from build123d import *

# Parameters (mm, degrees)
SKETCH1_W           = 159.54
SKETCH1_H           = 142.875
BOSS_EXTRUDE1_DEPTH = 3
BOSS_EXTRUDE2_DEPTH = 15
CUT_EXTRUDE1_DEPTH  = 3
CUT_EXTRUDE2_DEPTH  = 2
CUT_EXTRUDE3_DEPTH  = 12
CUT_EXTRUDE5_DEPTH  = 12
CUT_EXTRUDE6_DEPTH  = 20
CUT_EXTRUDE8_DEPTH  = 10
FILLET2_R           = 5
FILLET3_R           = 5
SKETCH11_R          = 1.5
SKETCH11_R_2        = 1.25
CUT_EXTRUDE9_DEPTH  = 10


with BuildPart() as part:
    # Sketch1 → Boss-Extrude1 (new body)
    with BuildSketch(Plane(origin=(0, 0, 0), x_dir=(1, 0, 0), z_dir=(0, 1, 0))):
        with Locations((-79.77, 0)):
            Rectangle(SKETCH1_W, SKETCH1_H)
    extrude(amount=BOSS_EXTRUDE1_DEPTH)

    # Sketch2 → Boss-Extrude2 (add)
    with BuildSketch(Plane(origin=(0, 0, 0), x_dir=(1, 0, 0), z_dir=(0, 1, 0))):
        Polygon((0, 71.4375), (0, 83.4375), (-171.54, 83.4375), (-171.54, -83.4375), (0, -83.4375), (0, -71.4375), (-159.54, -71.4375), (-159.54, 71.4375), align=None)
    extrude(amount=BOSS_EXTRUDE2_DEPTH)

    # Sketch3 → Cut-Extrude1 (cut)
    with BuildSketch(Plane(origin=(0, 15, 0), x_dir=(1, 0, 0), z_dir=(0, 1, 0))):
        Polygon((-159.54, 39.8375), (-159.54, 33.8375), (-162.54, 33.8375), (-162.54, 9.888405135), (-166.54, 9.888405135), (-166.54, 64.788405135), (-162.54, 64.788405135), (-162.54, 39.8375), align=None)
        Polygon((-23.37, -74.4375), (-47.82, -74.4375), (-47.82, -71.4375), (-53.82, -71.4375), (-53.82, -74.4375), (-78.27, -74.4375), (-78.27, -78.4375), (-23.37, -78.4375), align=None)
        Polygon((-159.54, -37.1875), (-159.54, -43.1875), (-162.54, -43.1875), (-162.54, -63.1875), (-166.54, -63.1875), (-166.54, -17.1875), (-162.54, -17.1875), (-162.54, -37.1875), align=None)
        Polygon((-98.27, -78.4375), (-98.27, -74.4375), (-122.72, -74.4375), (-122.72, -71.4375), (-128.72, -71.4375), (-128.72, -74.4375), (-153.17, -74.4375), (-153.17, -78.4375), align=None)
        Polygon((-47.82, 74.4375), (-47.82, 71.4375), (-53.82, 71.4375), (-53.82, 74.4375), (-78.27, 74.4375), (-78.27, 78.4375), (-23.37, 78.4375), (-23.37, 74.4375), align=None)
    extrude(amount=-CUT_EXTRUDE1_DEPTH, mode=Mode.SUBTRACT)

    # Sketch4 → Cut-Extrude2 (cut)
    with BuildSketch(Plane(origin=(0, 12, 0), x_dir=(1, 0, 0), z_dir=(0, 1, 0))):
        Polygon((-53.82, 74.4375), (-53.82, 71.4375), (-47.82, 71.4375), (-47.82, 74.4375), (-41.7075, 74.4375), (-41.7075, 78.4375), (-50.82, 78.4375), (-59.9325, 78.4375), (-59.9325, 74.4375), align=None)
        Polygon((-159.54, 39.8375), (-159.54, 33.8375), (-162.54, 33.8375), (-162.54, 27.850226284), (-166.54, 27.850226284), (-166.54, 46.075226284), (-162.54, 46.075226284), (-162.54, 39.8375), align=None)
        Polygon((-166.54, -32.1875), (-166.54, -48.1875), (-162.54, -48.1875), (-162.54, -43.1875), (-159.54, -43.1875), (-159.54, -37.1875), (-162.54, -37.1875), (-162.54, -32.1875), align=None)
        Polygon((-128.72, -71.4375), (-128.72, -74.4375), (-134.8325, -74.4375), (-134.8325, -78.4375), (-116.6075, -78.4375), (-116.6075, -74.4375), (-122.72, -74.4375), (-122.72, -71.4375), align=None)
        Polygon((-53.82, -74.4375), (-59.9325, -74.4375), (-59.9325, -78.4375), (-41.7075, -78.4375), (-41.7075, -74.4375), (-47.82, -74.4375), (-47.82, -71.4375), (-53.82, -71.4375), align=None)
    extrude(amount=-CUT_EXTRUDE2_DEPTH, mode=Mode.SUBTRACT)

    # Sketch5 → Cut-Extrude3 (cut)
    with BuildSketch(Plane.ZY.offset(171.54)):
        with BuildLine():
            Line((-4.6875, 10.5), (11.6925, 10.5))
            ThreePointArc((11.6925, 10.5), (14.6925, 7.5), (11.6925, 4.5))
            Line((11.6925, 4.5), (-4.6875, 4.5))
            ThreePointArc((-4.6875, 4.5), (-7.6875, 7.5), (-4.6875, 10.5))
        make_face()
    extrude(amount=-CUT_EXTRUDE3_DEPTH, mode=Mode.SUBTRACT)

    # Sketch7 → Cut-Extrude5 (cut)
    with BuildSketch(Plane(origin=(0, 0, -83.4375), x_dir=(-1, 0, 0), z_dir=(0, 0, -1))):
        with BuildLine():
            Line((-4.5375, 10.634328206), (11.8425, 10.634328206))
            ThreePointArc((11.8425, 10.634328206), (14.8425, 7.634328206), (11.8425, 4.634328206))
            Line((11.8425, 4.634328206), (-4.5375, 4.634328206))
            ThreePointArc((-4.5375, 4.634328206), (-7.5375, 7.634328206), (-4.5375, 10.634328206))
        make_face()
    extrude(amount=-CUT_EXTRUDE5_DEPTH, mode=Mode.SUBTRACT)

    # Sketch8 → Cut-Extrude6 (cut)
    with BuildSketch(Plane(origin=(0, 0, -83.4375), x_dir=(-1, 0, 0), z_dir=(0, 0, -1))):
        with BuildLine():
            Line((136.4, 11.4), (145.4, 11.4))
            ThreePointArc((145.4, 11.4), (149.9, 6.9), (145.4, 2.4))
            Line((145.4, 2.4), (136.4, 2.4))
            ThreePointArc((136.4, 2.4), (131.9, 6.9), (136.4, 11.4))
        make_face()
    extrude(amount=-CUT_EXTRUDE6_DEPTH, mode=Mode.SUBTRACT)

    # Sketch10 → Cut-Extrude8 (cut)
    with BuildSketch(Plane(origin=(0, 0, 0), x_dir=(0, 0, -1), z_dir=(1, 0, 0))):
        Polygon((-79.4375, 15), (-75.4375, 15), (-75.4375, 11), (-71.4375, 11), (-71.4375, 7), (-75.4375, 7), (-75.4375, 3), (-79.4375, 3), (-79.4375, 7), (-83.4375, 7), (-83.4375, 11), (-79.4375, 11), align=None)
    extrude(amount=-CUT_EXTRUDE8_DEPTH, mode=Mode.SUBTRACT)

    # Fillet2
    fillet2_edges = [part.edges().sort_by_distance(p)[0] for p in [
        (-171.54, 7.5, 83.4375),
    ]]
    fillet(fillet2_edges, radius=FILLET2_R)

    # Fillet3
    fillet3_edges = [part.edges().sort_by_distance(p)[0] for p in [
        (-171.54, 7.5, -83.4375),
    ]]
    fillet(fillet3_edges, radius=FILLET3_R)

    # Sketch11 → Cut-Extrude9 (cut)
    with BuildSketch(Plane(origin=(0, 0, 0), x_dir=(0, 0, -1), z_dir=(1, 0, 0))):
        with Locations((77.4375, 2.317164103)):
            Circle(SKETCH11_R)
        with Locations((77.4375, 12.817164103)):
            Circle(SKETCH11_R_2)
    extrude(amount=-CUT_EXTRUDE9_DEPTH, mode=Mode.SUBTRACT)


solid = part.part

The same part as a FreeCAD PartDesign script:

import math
import FreeCAD as App
import Part
import Sketcher
from FreeCAD import Vector


def edges_at(feature, points):
    """Names of the edges that pass closest to the given points."""
    edges = feature.Shape.Edges
    near = lambda p: min(range(len(edges)), key=lambda i: edges[i].distToShape(Part.Vertex(*p))[0])
    return sorted({f"Edge{near(p) + 1}" for p in points})

doc = App.newDocument("Part")
params = doc.addObject("Spreadsheet::Sheet", "Params")
for row, (alias, value) in enumerate([
    ("sketch1_width", "159.54 mm"),
    ("pad1_length", "3 mm"),
    ("sketch2_height", "12 mm"),
    ("sketch2_width", "171.54 mm"),
    ("pad2_length", "15 mm"),
    ("sketch3_width", "3 mm"),
    ("sketch3_width2", "4 mm"),
    ("sketch3_width3", "6 mm"),
    ("sketch3_height", "20 mm"),
    ("sketch3_width4", "54.9 mm"),
    ("pocket1_length", "3 mm"),
    ("sketch4_width", "6 mm"),
    ("sketch4_width2", "3 mm"),
    ("sketch4_width3", "4 mm"),
    ("sketch4_height", "16 mm"),
    ("pocket2_length", "2 mm"),
    ("sketch5_radius", "3 mm"),
    ("sketch5_height", "16.38 mm"),
    ("pocket3_length", "12 mm"),
    ("sketch6_radius", "3 mm"),
    ("sketch6_width", "16.38 mm"),
    ("pocket4_length", "12 mm"),
    ("sketch7_radius", "4.5 mm"),
    ("sketch7_width", "9 mm"),
    ("pocket5_length", "20 mm"),
    ("sketch8_width", "4 mm"),
    ("pocket6_length", "10 mm"),
    ("fillet_radius", "5 mm"),
    ("fillet2_radius", "5 mm"),
    ("sketch9_diameter", "3 mm"),
    ("sketch9_diameter2", "2.5 mm"),
    ("pocket7_length", "10 mm"),
], start=1):
    params.set(f"A{row}", alias)
    params.set(f"B{row}", "=" + value)
    params.setAlias(f"B{row}", alias)

body = doc.addObject("PartDesign::Body", "Body")

# Sketch on XZ plane
sketch1 = body.newObject("Sketcher::SketchObject", "Sketch")
sketch1.AttachmentSupport = (doc.getObject("XZ_Plane"), [""])
sketch1.MapMode = "FlatFace"
sketch1.addGeometry([
    Part.LineSegment(Vector(-159.54, -71.4375, 0), Vector(-159.54, 71.4375, 0)),
    Part.LineSegment(Vector(-159.54, 71.4375, 0), Vector(0, 71.4375, 0)),
    Part.LineSegment(Vector(0, 71.4375, 0), Vector(0, -71.4375, 0)),
    Part.LineSegment(Vector(0, -71.4375, 0), Vector(-159.54, -71.4375, 0)),
], False)
sketch1.addConstraint([
    Sketcher.Constraint("Coincident", 0, 2, 1, 1),
    Sketcher.Constraint("Coincident", 1, 2, 2, 1),
    Sketcher.Constraint("Coincident", 2, 2, 3, 1),
    Sketcher.Constraint("Coincident", 3, 2, 0, 1),
    Sketcher.Constraint("Vertical", 0),
    Sketcher.Constraint("Horizontal", 1),
    Sketcher.Constraint("Vertical", 2),
    Sketcher.Constraint("Horizontal", 3),
    Sketcher.Constraint("Symmetric", 1, 2, 2, 2, -1, 1),
    Sketcher.Constraint("DistanceX", 1, 1, 1, 2, 159.54),
    Sketcher.Constraint("DistanceY", 0, 1, 0, 2, 142.875),
])
sketch1.setExpression("Constraints[9]", "Params.sketch1_width")
pad1 = body.newObject("PartDesign::Pad", "Pad")
pad1.Profile = sketch1
pad1.setExpression("Length", "Params.pad1_length")
pad1.Reversed = True

# Sketch on XZ plane
sketch2 = body.newObject("Sketcher::SketchObject", "Sketch001")
sketch2.AttachmentSupport = (doc.getObject("XZ_Plane"), [""])
sketch2.MapMode = "FlatFace"
sketch2.addGeometry([
    Part.LineSegment(Vector(0, -71.4375, 0), Vector(0, -83.4375, 0)),  # 0
    Part.LineSegment(Vector(0, -83.4375, 0), Vector(-171.54, -83.4375, 0)),  # 1
    Part.LineSegment(Vector(-171.54, -83.4375, 0), Vector(-171.54, 83.4375, 0)),  # 2
    Part.LineSegment(Vector(-171.54, 83.4375, 0), Vector(0, 83.4375, 0)),  # 3
    Part.LineSegment(Vector(0, 83.4375, 0), Vector(0, 71.4375, 0)),  # 4
    Part.LineSegment(Vector(0, 71.4375, 0), Vector(-159.54, 71.4375, 0)),  # 5
    Part.LineSegment(Vector(-159.54, 71.4375, 0), Vector(-159.54, -71.4375, 0)),  # 6
    Part.LineSegment(Vector(-159.54, -71.4375, 0), Vector(0, -71.4375, 0)),  # 7
], False)
sketch2.addConstraint([
    Sketcher.Constraint("Coincident", 0, 2, 1, 1),
    Sketcher.Constraint("Coincident", 1, 2, 2, 1),
    Sketcher.Constraint("Coincident", 2, 2, 3, 1),
    Sketcher.Constraint("Coincident", 3, 2, 4, 1),
    Sketcher.Constraint("Coincident", 4, 2, 5, 1),
    Sketcher.Constraint("Coincident", 5, 2, 6, 1),
    Sketcher.Constraint("Coincident", 6, 2, 7, 1),
    Sketcher.Constraint("Coincident", 7, 2, 0, 1),
    Sketcher.Constraint("Vertical", 0),
    Sketcher.Constraint("Horizontal", 1),
    Sketcher.Constraint("Vertical", 2),
    Sketcher.Constraint("Horizontal", 3),
    Sketcher.Constraint("Vertical", 4),
    Sketcher.Constraint("Horizontal", 5),
    Sketcher.Constraint("Vertical", 6),
    Sketcher.Constraint("Horizontal", 7),
    Sketcher.Constraint("Symmetric", 0, 2, 3, 2, -1, 1),
    Sketcher.Constraint("Symmetric", 4, 2, 7, 2, -1),
    Sketcher.Constraint("DistanceY", 0, 2, 0, 1, 12.0),
    Sketcher.Constraint("DistanceX", 2, 2, 5, 2, 12.0),
    Sketcher.Constraint("DistanceX", 1, 2, 1, 1, 171.54),
    Sketcher.Constraint("DistanceY", 2, 1, 2, 2, 166.875),
])
sketch2.setExpression("Constraints[18]", "Params.sketch2_height")
sketch2.setExpression("Constraints[20]", "Params.sketch2_width")
pad2 = body.newObject("PartDesign::Pad", "Pad001")
pad2.Profile = sketch2
pad2.setExpression("Length", "Params.pad2_length")
pad2.Reversed = True

# Sketch on XZ plane
sketch3 = body.newObject("Sketcher::SketchObject", "Sketch002")
sketch3.AttachmentSupport = (doc.getObject("XZ_Plane"), [""])
sketch3.MapMode = "FlatFace"
sketch3.AttachmentOffset = App.Placement(Vector(0, 0, -15), App.Rotation())
sketch3.addGeometry([
    Part.LineSegment(Vector(-159.54, -33.8375, 0), Vector(-159.54, -39.8375, 0)),  # 0
    Part.LineSegment(Vector(-159.54, -39.8375, 0), Vector(-162.54, -39.8375, 0)),  # 1
    Part.LineSegment(Vector(-162.54, -39.8375, 0), Vector(-162.54, -64.788405, 0)),  # 2
    Part.LineSegment(Vector(-162.54, -64.788405, 0), Vector(-166.54, -64.788405, 0)),  # 3
    Part.LineSegment(Vector(-166.54, -64.788405, 0), Vector(-166.54, -9.888405, 0)),  # 4
    Part.LineSegment(Vector(-166.54, -9.888405, 0), Vector(-162.54, -9.888405, 0)),  # 5
    Part.LineSegment(Vector(-162.54, -9.888405, 0), Vector(-162.54, -33.8375, 0)),  # 6
    Part.LineSegment(Vector(-162.54, -33.8375, 0), Vector(-159.54, -33.8375, 0)),  # 7
    Part.LineSegment(Vector(-23.37, 74.4375, 0), Vector(-47.82, 74.4375, 0)),  # 8
    Part.LineSegment(Vector(-47.82, 74.4375, 0), Vector(-47.82, 71.4375, 0)),  # 9
    Part.LineSegment(Vector(-47.82, 71.4375, 0), Vector(-53.82, 71.4375, 0)),  # 10
    Part.LineSegment(Vector(-53.82, 71.4375, 0), Vector(-53.82, 74.4375, 0)),  # 11
    Part.LineSegment(Vector(-53.82, 74.4375, 0), Vector(-78.27, 74.4375, 0)),  # 12
    Part.LineSegment(Vector(-78.27, 74.4375, 0), Vector(-78.27, 78.4375, 0)),  # 13
    Part.LineSegment(Vector(-78.27, 78.4375, 0), Vector(-23.37, 78.4375, 0)),  # 14
    Part.LineSegment(Vector(-23.37, 78.4375, 0), Vector(-23.37, 74.4375, 0)),  # 15
    Part.LineSegment(Vector(-159.54, 43.1875, 0), Vector(-159.54, 37.1875, 0)),  # 16
    Part.LineSegment(Vector(-159.54, 37.1875, 0), Vector(-162.54, 37.1875, 0)),  # 17
    Part.LineSegment(Vector(-162.54, 37.1875, 0), Vector(-162.54, 17.1875, 0)),  # 18
    Part.LineSegment(Vector(-162.54, 17.1875, 0), Vector(-166.54, 17.1875, 0)),  # 19
    Part.LineSegment(Vector(-166.54, 17.1875, 0), Vector(-166.54, 63.1875, 0)),  # 20
    Part.LineSegment(Vector(-166.54, 63.1875, 0), Vector(-162.54, 63.1875, 0)),  # 21
    Part.LineSegment(Vector(-162.54, 63.1875, 0), Vector(-162.54, 43.1875, 0)),  # 22
    Part.LineSegment(Vector(-162.54, 43.1875, 0), Vector(-159.54, 43.1875, 0)),  # 23
    Part.LineSegment(Vector(-98.27, 78.4375, 0), Vector(-98.27, 74.4375, 0)),  # 24
    Part.LineSegment(Vector(-98.27, 74.4375, 0), Vector(-122.72, 74.4375, 0)),  # 25
    Part.LineSegment(Vector(-122.72, 74.4375, 0), Vector(-122.72, 71.4375, 0)),  # 26
    Part.LineSegment(Vector(-122.72, 71.4375, 0), Vector(-128.72, 71.4375, 0)),  # 27
    Part.LineSegment(Vector(-128.72, 71.4375, 0), Vector(-128.72, 74.4375, 0)),  # 28
    Part.LineSegment(Vector(-128.72, 74.4375, 0), Vector(-153.17, 74.4375, 0)),  # 29
    Part.LineSegment(Vector(-153.17, 74.4375, 0), Vector(-153.17, 78.4375, 0)),  # 30
    Part.LineSegment(Vector(-153.17, 78.4375, 0), Vector(-98.27, 78.4375, 0)),  # 31
    Part.LineSegment(Vector(-47.82, -71.4375, 0), Vector(-47.82, -74.4375, 0)),  # 32
    Part.LineSegment(Vector(-47.82, -74.4375, 0), Vector(-23.37, -74.4375, 0)),  # 33
    Part.LineSegment(Vector(-23.37, -74.4375, 0), Vector(-23.37, -78.4375, 0)),  # 34
    Part.LineSegment(Vector(-23.37, -78.4375, 0), Vector(-78.27, -78.4375, 0)),  # 35
    Part.LineSegment(Vector(-78.27, -78.4375, 0), Vector(-78.27, -74.4375, 0)),  # 36
    Part.LineSegment(Vector(-78.27, -74.4375, 0), Vector(-53.82, -74.4375, 0)),  # 37
    Part.LineSegment(Vector(-53.82, -74.4375, 0), Vector(-53.82, -71.4375, 0)),  # 38
    Part.LineSegment(Vector(-53.82, -71.4375, 0), Vector(-47.82, -71.4375, 0)),  # 39
], False)
sketch3.addConstraint([
    Sketcher.Constraint("Coincident", 0, 2, 1, 1),
    Sketcher.Constraint("Coincident", 1, 2, 2, 1),
    Sketcher.Constraint("Coincident", 2, 2, 3, 1),
    Sketcher.Constraint("Coincident", 3, 2, 4, 1),
    Sketcher.Constraint("Coincident", 4, 2, 5, 1),
    Sketcher.Constraint("Coincident", 5, 2, 6, 1),
    Sketcher.Constraint("Coincident", 6, 2, 7, 1),
    Sketcher.Constraint("Coincident", 7, 2, 0, 1),
    Sketcher.Constraint("Coincident", 8, 2, 9, 1),
    Sketcher.Constraint("Coincident", 9, 2, 10, 1),
    Sketcher.Constraint("Coincident", 10, 2, 11, 1),
    Sketcher.Constraint("Coincident", 11, 2, 12, 1),
    Sketcher.Constraint("Coincident", 12, 2, 13, 1),
    Sketcher.Constraint("Coincident", 13, 2, 14, 1),
    Sketcher.Constraint("Coincident", 14, 2, 15, 1),
    Sketcher.Constraint("Coincident", 15, 2, 8, 1),
    Sketcher.Constraint("Coincident", 16, 2, 17, 1),
    Sketcher.Constraint("Coincident", 17, 2, 18, 1),
    Sketcher.Constraint("Coincident", 18, 2, 19, 1),
    Sketcher.Constraint("Coincident", 19, 2, 20, 1),
    Sketcher.Constraint("Coincident", 20, 2, 21, 1),
    Sketcher.Constraint("Coincident", 21, 2, 22, 1),
    Sketcher.Constraint("Coincident", 22, 2, 23, 1),
    Sketcher.Constraint("Coincident", 23, 2, 16, 1),
    Sketcher.Constraint("Coincident", 24, 2, 25, 1),
    Sketcher.Constraint("Coincident", 25, 2, 26, 1),
    Sketcher.Constraint("Coincident", 26, 2, 27, 1),
    Sketcher.Constraint("Coincident", 27, 2, 28, 1),
    Sketcher.Constraint("Coincident", 28, 2, 29, 1),
    Sketcher.Constraint("Coincident", 29, 2, 30, 1),
    Sketcher.Constraint("Coincident", 30, 2, 31, 1),
    Sketcher.Constraint("Coincident", 31, 2, 24, 1),
    Sketcher.Constraint("Coincident", 32, 2, 33, 1),
    Sketcher.Constraint("Coincident", 33, 2, 34, 1),
    Sketcher.Constraint("Coincident", 34, 2, 35, 1),
    Sketcher.Constraint("Coincident", 35, 2, 36, 1),
    Sketcher.Constraint("Coincident", 36, 2, 37, 1),
    Sketcher.Constraint("Coincident", 37, 2, 38, 1),
    Sketcher.Constraint("Coincident", 38, 2, 39, 1),
    Sketcher.Constraint("Coincident", 39, 2, 32, 1),
    Sketcher.Constraint("Vertical", 0),
    Sketcher.Constraint("Horizontal", 1),
    Sketcher.Constraint("Vertical", 2),
    Sketcher.Constraint("Horizontal", 3),
    Sketcher.Constraint("Vertical", 4),
    Sketcher.Constraint("Horizontal", 5),
    Sketcher.Constraint("Vertical", 6),
    Sketcher.Constraint("Horizontal", 7),
    Sketcher.Constraint("Horizontal", 8),
    Sketcher.Constraint("Vertical", 9),
    Sketcher.Constraint("Horizontal", 10),
    Sketcher.Constraint("Vertical", 11),
    Sketcher.Constraint("Horizontal", 12),
    Sketcher.Constraint("Vertical", 13),
    Sketcher.Constraint("Horizontal", 14),
    Sketcher.Constraint("Vertical", 15),
    Sketcher.Constraint("Vertical", 16),
    Sketcher.Constraint("Horizontal", 17),
    Sketcher.Constraint("Vertical", 18),
    Sketcher.Constraint("Horizontal", 19),
    Sketcher.Constraint("Vertical", 20),
    Sketcher.Constraint("Horizontal", 21),
    Sketcher.Constraint("Vertical", 22),
    Sketcher.Constraint("Horizontal", 23),
    Sketcher.Constraint("Vertical", 24),
    Sketcher.Constraint("Horizontal", 25),
    Sketcher.Constraint("Vertical", 26),
    Sketcher.Constraint("Horizontal", 27),
    Sketcher.Constraint("Vertical", 28),
    Sketcher.Constraint("Horizontal", 29),
    Sketcher.Constraint("Vertical", 30),
    Sketcher.Constraint("Horizontal", 31),
    Sketcher.Constraint("Vertical", 32),
    Sketcher.Constraint("Horizontal", 33),
    Sketcher.Constraint("Vertical", 34),
    Sketcher.Constraint("Horizontal", 35),
    Sketcher.Constraint("Vertical", 36),
    Sketcher.Constraint("Horizontal", 37),
    Sketcher.Constraint("Vertical", 38),
    Sketcher.Constraint("Horizontal", 39),
    Sketcher.Constraint("Symmetric", 8, 2, 32, 2, -1),
    Sketcher.Constraint("Symmetric", 14, 2, 34, 2, -1),
    Sketcher.Constraint("Symmetric", 12, 2, 36, 2, -1),
    Sketcher.Constraint("Symmetric", 10, 2, 38, 2, -1),
    Sketcher.Constraint("Horizontal", 8, 2, 11, 2),
    Sketcher.Constraint("Horizontal", 15, 2, 24, 2),
    Sketcher.Constraint("Horizontal", 10, 2, 26, 2),
    Sketcher.Constraint("Horizontal", 25, 2, 28, 2),
    Sketcher.Constraint("Horizontal", 14, 2, 30, 2),
    Sketcher.Constraint("Vertical", 2, 2, 5, 2),
    Sketcher.Constraint("Vertical", 7, 2, 16, 2),
    Sketcher.Constraint("Vertical", 6, 2, 17, 2),
    Sketcher.Constraint("Vertical", 4, 2, 19, 2),
    Sketcher.Constraint("Vertical", 18, 2, 21, 2),
    Sketcher.Constraint("Equal", 8, 12),
    Sketcher.Constraint("Equal", 12, 25),
    Sketcher.Constraint("Equal", 10, 27),
    Sketcher.Constraint("Equal", 25, 29),
    Sketcher.Constraint("Equal", 39, 0),
    Sketcher.Constraint("Equal", 35, 4),
    Sketcher.Constraint("Equal", 23, 9),
    Sketcher.Constraint("Equal", 21, 13),
    Sketcher.Constraint("Equal", 0, 16),
    Sketcher.Constraint("Equal", 18, 22),
    Sketcher.Constraint("DistanceX", 1, 2, 1, 1, 3.0),
    Sketcher.Constraint("DistanceX", 3, 2, 3, 1, 4.0),
    Sketcher.Constraint("DistanceX", 10, 2, 10, 1, 6.0),
    Sketcher.Constraint("DistanceY", 18, 2, 18, 1, 20.0),
    Sketcher.Constraint("DistanceX", 14, 1, 14, 2, 54.9),
    Sketcher.Constraint("DistanceX", 24, 2, 12, 2, 20.0),
    Sketcher.Constraint("DistanceY", 32, 2, 0, 2, 34.6),
    Sketcher.Constraint("DistanceX", 0, 2, -1, 1, 159.54),
    Sketcher.Constraint("DistanceX", 8, 2, -1, 1, 47.82),
    Sketcher.Constraint("DistanceY", 21, 2, 25, 2, 11.25),
    Sketcher.Constraint("DistanceY", 7, 2, 8, 2, 108.275),
    Sketcher.Constraint("DistanceY", 2, 2, 2, 1, 24.950905),
])
sketch3.setExpression("Constraints[104]", "Params.sketch3_width")
sketch3.setExpression("Constraints[105]", "Params.sketch3_width2")
sketch3.setExpression("Constraints[106]", "Params.sketch3_width3")
sketch3.setExpression("Constraints[107]", "Params.sketch3_height")
sketch3.setExpression("Constraints[108]", "Params.sketch3_width4")
pocket1 = body.newObject("PartDesign::Pocket", "Pocket")
pocket1.Profile = sketch3
pocket1.setExpression("Length", "Params.pocket1_length")
pocket1.Reversed = True

# Sketch on XZ plane
sketch4 = body.newObject("Sketcher::SketchObject", "Sketch003")
sketch4.AttachmentSupport = (doc.getObject("XZ_Plane"), [""])
sketch4.MapMode = "FlatFace"
sketch4.AttachmentOffset = App.Placement(Vector(0, 0, -12), App.Rotation())
sketch4.addGeometry([
    Part.LineSegment(Vector(-53.82, -74.4375, 0), Vector(-53.82, -71.4375, 0)),  # 0
    Part.LineSegment(Vector(-53.82, -71.4375, 0), Vector(-47.82, -71.4375, 0)),  # 1
    Part.LineSegment(Vector(-47.82, -71.4375, 0), Vector(-47.82, -74.4375, 0)),  # 2
    Part.LineSegment(Vector(-47.82, -74.4375, 0), Vector(-41.7075, -74.4375, 0)),  # 3
    Part.LineSegment(Vector(-41.7075, -74.4375, 0), Vector(-41.7075, -78.4375, 0)),  # 4
    Part.LineSegment(Vector(-41.7075, -78.4375, 0), Vector(-59.9325, -78.4375, 0)),  # 5
    Part.LineSegment(Vector(-59.9325, -78.4375, 0), Vector(-59.9325, -74.4375, 0)),  # 6
    Part.LineSegment(Vector(-59.9325, -74.4375, 0), Vector(-53.82, -74.4375, 0)),  # 7
    Part.LineSegment(Vector(-159.54, -33.8375, 0), Vector(-159.54, -39.8375, 0)),  # 8
    Part.LineSegment(Vector(-159.54, -39.8375, 0), Vector(-162.54, -39.8375, 0)),  # 9
    Part.LineSegment(Vector(-162.54, -39.8375, 0), Vector(-162.54, -46.075226, 0)),  # 10
    Part.LineSegment(Vector(-162.54, -46.075226, 0), Vector(-166.54, -46.075226, 0)),  # 11
    Part.LineSegment(Vector(-166.54, -46.075226, 0), Vector(-166.54, -27.850226, 0)),  # 12
    Part.LineSegment(Vector(-166.54, -27.850226, 0), Vector(-162.54, -27.850226, 0)),  # 13
    Part.LineSegment(Vector(-162.54, -27.850226, 0), Vector(-162.54, -33.8375, 0)),  # 14
    Part.LineSegment(Vector(-162.54, -33.8375, 0), Vector(-159.54, -33.8375, 0)),  # 15
    Part.LineSegment(Vector(-166.54, 32.1875, 0), Vector(-166.54, 48.1875, 0)),  # 16
    Part.LineSegment(Vector(-166.54, 48.1875, 0), Vector(-162.54, 48.1875, 0)),  # 17
    Part.LineSegment(Vector(-162.54, 48.1875, 0), Vector(-162.54, 43.1875, 0)),  # 18
    Part.LineSegment(Vector(-162.54, 43.1875, 0), Vector(-159.54, 43.1875, 0)),  # 19
    Part.LineSegment(Vector(-159.54, 43.1875, 0), Vector(-159.54, 37.1875, 0)),  # 20
    Part.LineSegment(Vector(-159.54, 37.1875, 0), Vector(-162.54, 37.1875, 0)),  # 21
    Part.LineSegment(Vector(-162.54, 37.1875, 0), Vector(-162.54, 32.1875, 0)),  # 22
    Part.LineSegment(Vector(-162.54, 32.1875, 0), Vector(-166.54, 32.1875, 0)),  # 23
    Part.LineSegment(Vector(-128.72, 71.4375, 0), Vector(-128.72, 74.4375, 0)),  # 24
    Part.LineSegment(Vector(-128.72, 74.4375, 0), Vector(-134.8325, 74.4375, 0)),  # 25
    Part.LineSegment(Vector(-134.8325, 74.4375, 0), Vector(-134.8325, 78.4375, 0)),  # 26
    Part.LineSegment(Vector(-134.8325, 78.4375, 0), Vector(-116.6075, 78.4375, 0)),  # 27
    Part.LineSegment(Vector(-116.6075, 78.4375, 0), Vector(-116.6075, 74.4375, 0)),  # 28
    Part.LineSegment(Vector(-116.6075, 74.4375, 0), Vector(-122.72, 74.4375, 0)),  # 29
    Part.LineSegment(Vector(-122.72, 74.4375, 0), Vector(-122.72, 71.4375, 0)),  # 30
    Part.LineSegment(Vector(-122.72, 71.4375, 0), Vector(-128.72, 71.4375, 0)),  # 31
    Part.LineSegment(Vector(-53.82, 74.4375, 0), Vector(-59.9325, 74.4375, 0)),  # 32
    Part.LineSegment(Vector(-59.9325, 74.4375, 0), Vector(-59.9325, 78.4375, 0)),  # 33
    Part.LineSegment(Vector(-59.9325, 78.4375, 0), Vector(-41.7075, 78.4375, 0)),  # 34
    Part.LineSegment(Vector(-41.7075, 78.4375, 0), Vector(-41.7075, 74.4375, 0)),  # 35
    Part.LineSegment(Vector(-41.7075, 74.4375, 0), Vector(-47.82, 74.4375, 0)),  # 36
    Part.LineSegment(Vector(-47.82, 74.4375, 0), Vector(-47.82, 71.4375, 0)),  # 37
    Part.LineSegment(Vector(-47.82, 71.4375, 0), Vector(-53.82, 71.4375, 0)),  # 38
    Part.LineSegment(Vector(-53.82, 71.4375, 0), Vector(-53.82, 74.4375, 0)),  # 39
], False)
sketch4.addConstraint([
    Sketcher.Constraint("Coincident", 0, 2, 1, 1),
    Sketcher.Constraint("Coincident", 1, 2, 2, 1),
    Sketcher.Constraint("Coincident", 2, 2, 3, 1),
    Sketcher.Constraint("Coincident", 3, 2, 4, 1),
    Sketcher.Constraint("Coincident", 4, 2, 5, 1),
    Sketcher.Constraint("Coincident", 5, 2, 6, 1),
    Sketcher.Constraint("Coincident", 6, 2, 7, 1),
    Sketcher.Constraint("Coincident", 7, 2, 0, 1),
    Sketcher.Constraint("Coincident", 8, 2, 9, 1),
    Sketcher.Constraint("Coincident", 9, 2, 10, 1),
    Sketcher.Constraint("Coincident", 10, 2, 11, 1),
    Sketcher.Constraint("Coincident", 11, 2, 12, 1),
    Sketcher.Constraint("Coincident", 12, 2, 13, 1),
    Sketcher.Constraint("Coincident", 13, 2, 14, 1),
    Sketcher.Constraint("Coincident", 14, 2, 15, 1),
    Sketcher.Constraint("Coincident", 15, 2, 8, 1),
    Sketcher.Constraint("Coincident", 16, 2, 17, 1),
    Sketcher.Constraint("Coincident", 17, 2, 18, 1),
    Sketcher.Constraint("Coincident", 18, 2, 19, 1),
    Sketcher.Constraint("Coincident", 19, 2, 20, 1),
    Sketcher.Constraint("Coincident", 20, 2, 21, 1),
    Sketcher.Constraint("Coincident", 21, 2, 22, 1),
    Sketcher.Constraint("Coincident", 22, 2, 23, 1),
    Sketcher.Constraint("Coincident", 23, 2, 16, 1),
    Sketcher.Constraint("Coincident", 24, 2, 25, 1),
    Sketcher.Constraint("Coincident", 25, 2, 26, 1),
    Sketcher.Constraint("Coincident", 26, 2, 27, 1),
    Sketcher.Constraint("Coincident", 27, 2, 28, 1),
    Sketcher.Constraint("Coincident", 28, 2, 29, 1),
    Sketcher.Constraint("Coincident", 29, 2, 30, 1),
    Sketcher.Constraint("Coincident", 30, 2, 31, 1),
    Sketcher.Constraint("Coincident", 31, 2, 24, 1),
    Sketcher.Constraint("Coincident", 32, 2, 33, 1),
    Sketcher.Constraint("Coincident", 33, 2, 34, 1),
    Sketcher.Constraint("Coincident", 34, 2, 35, 1),
    Sketcher.Constraint("Coincident", 35, 2, 36, 1),
    Sketcher.Constraint("Coincident", 36, 2, 37, 1),
    Sketcher.Constraint("Coincident", 37, 2, 38, 1),
    Sketcher.Constraint("Coincident", 38, 2, 39, 1),
    Sketcher.Constraint("Coincident", 39, 2, 32, 1),
    Sketcher.Constraint("Vertical", 0),
    Sketcher.Constraint("Horizontal", 1),
    Sketcher.Constraint("Vertical", 2),
    Sketcher.Constraint("Horizontal", 3),
    Sketcher.Constraint("Vertical", 4),
    Sketcher.Constraint("Horizontal", 5),
    Sketcher.Constraint("Vertical", 6),
    Sketcher.Constraint("Horizontal", 7),
    Sketcher.Constraint("Vertical", 8),
    Sketcher.Constraint("Horizontal", 9),
    Sketcher.Constraint("Vertical", 10),
    Sketcher.Constraint("Horizontal", 11),
    Sketcher.Constraint("Vertical", 12),
    Sketcher.Constraint("Horizontal", 13),
    Sketcher.Constraint("Vertical", 14),
    Sketcher.Constraint("Horizontal", 15),
    Sketcher.Constraint("Vertical", 16),
    Sketcher.Constraint("Horizontal", 17),
    Sketcher.Constraint("Vertical", 18),
    Sketcher.Constraint("Horizontal", 19),
    Sketcher.Constraint("Vertical", 20),
    Sketcher.Constraint("Horizontal", 21),
    Sketcher.Constraint("Vertical", 22),
    Sketcher.Constraint("Horizontal", 23),
    Sketcher.Constraint("Vertical", 24),
    Sketcher.Constraint("Horizontal", 25),
    Sketcher.Constraint("Vertical", 26),
    Sketcher.Constraint("Horizontal", 27),
    Sketcher.Constraint("Vertical", 28),
    Sketcher.Constraint("Horizontal", 29),
    Sketcher.Constraint("Vertical", 30),
    Sketcher.Constraint("Horizontal", 31),
    Sketcher.Constraint("Horizontal", 32),
    Sketcher.Constraint("Vertical", 33),
    Sketcher.Constraint("Horizontal", 34),
    Sketcher.Constraint("Vertical", 35),
    Sketcher.Constraint("Horizontal", 36),
    Sketcher.Constraint("Vertical", 37),
    Sketcher.Constraint("Horizontal", 38),
    Sketcher.Constraint("Vertical", 39),
    Sketcher.Constraint("Symmetric", 6, 2, 32, 2, -1),
    Sketcher.Constraint("Symmetric", 4, 2, 34, 2, -1),
    Sketcher.Constraint("Symmetric", 2, 2, 36, 2, -1),
    Sketcher.Constraint("Symmetric", 0, 2, 38, 2, -1),
    Sketcher.Constraint("Horizontal", 3, 2, 6, 2),
    Sketcher.Constraint("Horizontal", 25, 2, 28, 2),
    Sketcher.Constraint("Horizontal", 29, 2, 32, 2),
    Sketcher.Constraint("Horizontal", 27, 2, 33, 2),
    Sketcher.Constraint("Horizontal", 31, 2, 37, 2),
    Sketcher.Constraint("Vertical", 10, 2, 13, 2),
    Sketcher.Constraint("Vertical", 12, 2, 16, 2),
    Sketcher.Constraint("Vertical", 14, 2, 17, 2),
    Sketcher.Constraint("Vertical", 15, 2, 19, 2),
    Sketcher.Constraint("Vertical", 18, 2, 21, 2),
    Sketcher.Constraint("Equal", 3, 7),
    Sketcher.Constraint("Equal", 7, 25),
    Sketcher.Constraint("Equal", 5, 27),
    Sketcher.Constraint("Equal", 25, 29),
    Sketcher.Constraint("Equal", 21, 0),
    Sketcher.Constraint("Equal", 23, 4),
    Sketcher.Constraint("Equal", 38, 8),
    Sketcher.Constraint("Equal", 34, 12),
    Sketcher.Constraint("Equal", 8, 20),
    Sketcher.Constraint("Equal", 18, 22),
    Sketcher.Constraint("DistanceX", 1, 1, 1, 2, 6.0),
    Sketcher.Constraint("DistanceX", 9, 2, 9, 1, 3.0),
    Sketcher.Constraint("DistanceX", 11, 2, 11, 1, 4.0),
    Sketcher.Constraint("DistanceY", 16, 1, 16, 2, 16.0),
    Sketcher.Constraint("DistanceY", 6, 2, 8, 2, 34.6),
    Sketcher.Constraint("DistanceX", 27, 2, 34, 2, 74.9),
    Sketcher.Constraint("DistanceX", 5, 2, 5, 1, 18.225),
    Sketcher.Constraint("DistanceX", 0, 2, -1, 1, 53.82),
    Sketcher.Constraint("DistanceX", 8, 2, -1, 1, 159.54),
    Sketcher.Constraint("DistanceY", 17, 2, 24, 2, 26.25),
    Sketcher.Constraint("DistanceY", 14, 2, 16, 2, 82.025),
    Sketcher.Constraint("DistanceY", 10, 2, 10, 1, 6.237726),
])
sketch4.setExpression("Constraints[104]", "Params.sketch4_width")
sketch4.setExpression("Constraints[105]", "Params.sketch4_width2")
sketch4.setExpression("Constraints[106]", "Params.sketch4_width3")
sketch4.setExpression("Constraints[107]", "Params.sketch4_height")
pocket2 = body.newObject("PartDesign::Pocket", "Pocket001")
pocket2.Profile = sketch4
pocket2.setExpression("Length", "Params.pocket2_length")
pocket2.Reversed = True

# Sketch on YZ plane
sketch5 = body.newObject("Sketcher::SketchObject", "Sketch004")
sketch5.AttachmentSupport = (doc.getObject("YZ_Plane"), [""])
sketch5.MapMode = "FlatFace"
sketch5.AttachmentOffset = App.Placement(Vector(0, 0, -171.54), App.Rotation())
sketch5.addGeometry([
    Part.LineSegment(Vector(10.5, 11.6925, 0), Vector(10.5, -4.6875, 0)),
    Part.ArcOfCircle(Part.Circle(Vector(7.5, -4.6875, 0), Vector(0, 0, 1), 3), math.radians(180), math.radians(360)),
    Part.LineSegment(Vector(4.5, -4.6875, 0), Vector(4.5, 11.6925, 0)),
    Part.ArcOfCircle(Part.Circle(Vector(7.5, 11.6925, 0), Vector(0, 0, 1), 3), math.radians(0), math.radians(180)),
], False)
sketch5.addConstraint([
    Sketcher.Constraint("Tangent", 0, 2, 1, 2),
    Sketcher.Constraint("Tangent", 1, 1, 2, 1),
    Sketcher.Constraint("Tangent", 2, 2, 3, 2),
    Sketcher.Constraint("Tangent", 3, 1, 0, 1),
    Sketcher.Constraint("Vertical", 0),
    Sketcher.Constraint("Vertical", 2),
    Sketcher.Constraint("Radius", 1, 3.0),
    Sketcher.Constraint("DistanceY", 0, 2, 0, 1, 16.38),
    Sketcher.Constraint("DistanceX", -1, 1, 1, 3, 7.5),
    Sketcher.Constraint("DistanceY", 1, 3, -1, 1, 4.6875),
])
sketch5.setExpression("Constraints[6]", "Params.sketch5_radius")
sketch5.setExpression("Constraints[7]", "Params.sketch5_height")
pocket3 = body.newObject("PartDesign::Pocket", "Pocket002")
pocket3.Profile = sketch5
pocket3.setExpression("Length", "Params.pocket3_length")
pocket3.Reversed = True

# Sketch on XY plane
sketch6 = body.newObject("Sketcher::SketchObject", "Sketch005")
sketch6.AttachmentSupport = (doc.getObject("XY_Plane"), [""])
sketch6.MapMode = "FlatFace"
sketch6.AttachmentOffset = App.Placement(Vector(0, 0, -83.4375), App.Rotation())
sketch6.addGeometry([
    Part.LineSegment(Vector(-11.8425, 10.634328, 0), Vector(4.5375, 10.634328, 0)),
    Part.ArcOfCircle(Part.Circle(Vector(4.5375, 7.634328, 0), Vector(0, 0, 1), 3), math.radians(-90), math.radians(90)),
    Part.LineSegment(Vector(4.5375, 4.634328, 0), Vector(-11.8425, 4.634328, 0)),
    Part.ArcOfCircle(Part.Circle(Vector(-11.8425, 7.634328, 0), Vector(0, 0, 1), 3), math.radians(90), math.radians(270)),
], False)
sketch6.addConstraint([
    Sketcher.Constraint("Tangent", 0, 2, 1, 2),
    Sketcher.Constraint("Tangent", 1, 1, 2, 1),
    Sketcher.Constraint("Tangent", 2, 2, 3, 2),
    Sketcher.Constraint("Tangent", 3, 1, 0, 1),
    Sketcher.Constraint("Horizontal", 0),
    Sketcher.Constraint("Horizontal", 2),
    Sketcher.Constraint("Radius", 1, 3.0),
    Sketcher.Constraint("DistanceX", 0, 1, 0, 2, 16.38),
    Sketcher.Constraint("DistanceX", -1, 1, 1, 3, 4.5375),
    Sketcher.Constraint("DistanceY", -1, 1, 1, 3, 7.634328),
])
sketch6.setExpression("Constraints[6]", "Params.sketch6_radius")
sketch6.setExpression("Constraints[7]", "Params.sketch6_width")
pocket4 = body.newObject("PartDesign::Pocket", "Pocket003")
pocket4.Profile = sketch6
pocket4.setExpression("Length", "Params.pocket4_length")
pocket4.Reversed = True

# Sketch on XY plane
sketch7 = body.newObject("Sketcher::SketchObject", "Sketch006")
sketch7.AttachmentSupport = (doc.getObject("XY_Plane"), [""])
sketch7.MapMode = "FlatFace"
sketch7.AttachmentOffset = App.Placement(Vector(0, 0, -83.4375), App.Rotation())
sketch7.addGeometry([
    Part.LineSegment(Vector(-145.4, 11.4, 0), Vector(-136.4, 11.4, 0)),
    Part.ArcOfCircle(Part.Circle(Vector(-136.4, 6.9, 0), Vector(0, 0, 1), 4.5), math.radians(-90), math.radians(90)),
    Part.LineSegment(Vector(-136.4, 2.4, 0), Vector(-145.4, 2.4, 0)),
    Part.ArcOfCircle(Part.Circle(Vector(-145.4, 6.9, 0), Vector(0, 0, 1), 4.5), math.radians(90), math.radians(270)),
], False)
sketch7.addConstraint([
    Sketcher.Constraint("Tangent", 0, 2, 1, 2),
    Sketcher.Constraint("Tangent", 1, 1, 2, 1),
    Sketcher.Constraint("Tangent", 2, 2, 3, 2),
    Sketcher.Constraint("Tangent", 3, 1, 0, 1),
    Sketcher.Constraint("Horizontal", 0),
    Sketcher.Constraint("Horizontal", 2),
    Sketcher.Constraint("Radius", 1, 4.5),
    Sketcher.Constraint("DistanceX", 0, 1, 0, 2, 9.0),
    Sketcher.Constraint("DistanceX", 1, 3, -1, 1, 136.4),
    Sketcher.Constraint("DistanceY", -1, 1, 1, 3, 6.9),
])
sketch7.setExpression("Constraints[6]", "Params.sketch7_radius")
sketch7.setExpression("Constraints[7]", "Params.sketch7_width")
pocket5 = body.newObject("PartDesign::Pocket", "Pocket004")
pocket5.Profile = sketch7
pocket5.setExpression("Length", "Params.pocket5_length")
pocket5.Reversed = True

# Sketch on YZ plane
sketch8 = body.newObject("Sketcher::SketchObject", "Sketch007")
sketch8.AttachmentSupport = (doc.getObject("YZ_Plane"), [""])
sketch8.MapMode = "FlatFace"
sketch8.addGeometry([
    Part.LineSegment(Vector(15, 75.4375, 0), Vector(15, 79.4375, 0)),  # 0
    Part.LineSegment(Vector(15, 79.4375, 0), Vector(11, 79.4375, 0)),  # 1
    Part.LineSegment(Vector(11, 79.4375, 0), Vector(11, 83.4375, 0)),  # 2
    Part.LineSegment(Vector(11, 83.4375, 0), Vector(7, 83.4375, 0)),  # 3
    Part.LineSegment(Vector(7, 83.4375, 0), Vector(7, 79.4375, 0)),  # 4
    Part.LineSegment(Vector(7, 79.4375, 0), Vector(3, 79.4375, 0)),  # 5
    Part.LineSegment(Vector(3, 79.4375, 0), Vector(3, 75.4375, 0)),  # 6
    Part.LineSegment(Vector(3, 75.4375, 0), Vector(7, 75.4375, 0)),  # 7
    Part.LineSegment(Vector(7, 75.4375, 0), Vector(7, 71.4375, 0)),  # 8
    Part.LineSegment(Vector(7, 71.4375, 0), Vector(11, 71.4375, 0)),  # 9
    Part.LineSegment(Vector(11, 71.4375, 0), Vector(11, 75.4375, 0)),  # 10
    Part.LineSegment(Vector(11, 75.4375, 0), Vector(15, 75.4375, 0)),  # 11
], False)
sketch8.addConstraint([
    Sketcher.Constraint("Coincident", 0, 2, 1, 1),
    Sketcher.Constraint("Coincident", 1, 2, 2, 1),
    Sketcher.Constraint("Coincident", 2, 2, 3, 1),
    Sketcher.Constraint("Coincident", 3, 2, 4, 1),
    Sketcher.Constraint("Coincident", 4, 2, 5, 1),
    Sketcher.Constraint("Coincident", 5, 2, 6, 1),
    Sketcher.Constraint("Coincident", 6, 2, 7, 1),
    Sketcher.Constraint("Coincident", 7, 2, 8, 1),
    Sketcher.Constraint("Coincident", 8, 2, 9, 1),
    Sketcher.Constraint("Coincident", 9, 2, 10, 1),
    Sketcher.Constraint("Coincident", 10, 2, 11, 1),
    Sketcher.Constraint("Coincident", 11, 2, 0, 1),
    Sketcher.Constraint("Vertical", 0),
    Sketcher.Constraint("Horizontal", 1),
    Sketcher.Constraint("Vertical", 2),
    Sketcher.Constraint("Horizontal", 3),
    Sketcher.Constraint("Vertical", 4),
    Sketcher.Constraint("Horizontal", 5),
    Sketcher.Constraint("Vertical", 6),
    Sketcher.Constraint("Horizontal", 7),
    Sketcher.Constraint("Vertical", 8),
    Sketcher.Constraint("Horizontal", 9),
    Sketcher.Constraint("Vertical", 10),
    Sketcher.Constraint("Horizontal", 11),
    Sketcher.Constraint("Horizontal", 1, 2, 4, 2),
    Sketcher.Constraint("Horizontal", 7, 2, 10, 2),
    Sketcher.Constraint("Vertical", 4, 2, 7, 2),
    Sketcher.Constraint("Vertical", 2, 2, 9, 2),
    Sketcher.Constraint("Equal", 1, 3),
    Sketcher.Constraint("Equal", 3, 5),
    Sketcher.Constraint("Equal", 11, 0),
    Sketcher.Constraint("Equal", 0, 2),
    Sketcher.Constraint("Equal", 6, 8),
    Sketcher.Constraint("DistanceX", 1, 2, 1, 1, 4.0),
    Sketcher.Constraint("DistanceX", -1, 1, 0, 2, 15.0),
    Sketcher.Constraint("DistanceY", -1, 1, 0, 2, 79.4375),
])
sketch8.setExpression("Constraints[33]", "Params.sketch8_width")
pocket6 = body.newObject("PartDesign::Pocket", "Pocket005")
pocket6.Profile = sketch8
pocket6.setExpression("Length", "Params.pocket6_length")
doc.recompute()

fillet = body.newObject("PartDesign::Fillet", "Fillet")
fillet.Base = (pocket6, edges_at(pocket6, [(-171.54, 7.5, 83.438)]))
fillet.setExpression("Radius", "Params.fillet_radius")
doc.recompute()

fillet2 = body.newObject("PartDesign::Fillet", "Fillet001")
fillet2.Base = (fillet, edges_at(fillet, [(-171.54, 7.5, -83.438)]))
fillet2.setExpression("Radius", "Params.fillet2_radius")

# Sketch on YZ plane
sketch9 = body.newObject("Sketcher::SketchObject", "Sketch008")
sketch9.AttachmentSupport = (doc.getObject("YZ_Plane"), [""])
sketch9.MapMode = "FlatFace"
sketch9.addGeometry([
    Part.Circle(Vector(2.317164, -77.4375, 0), Vector(0, 0, 1), 1.5),
    Part.Circle(Vector(12.817164, -77.4375, 0), Vector(0, 0, 1), 1.25),
], False)
sketch9.addConstraint([
    Sketcher.Constraint("Horizontal", 0, 3, 1, 3),
    Sketcher.Constraint("Diameter", 0, 3.0),
    Sketcher.Constraint("Diameter", 1, 2.5),
    Sketcher.Constraint("DistanceX", 0, 3, 1, 3, 10.5),
    Sketcher.Constraint("DistanceY", 0, 3, -1, 1, 77.4375),
    Sketcher.Constraint("DistanceX", -1, 1, 0, 3, 2.317164),
])
sketch9.setExpression("Constraints[1]", "Params.sketch9_diameter")
sketch9.setExpression("Constraints[2]", "Params.sketch9_diameter2")
pocket7 = body.newObject("PartDesign::Pocket", "Pocket006")
pocket7.Profile = sketch9
pocket7.setExpression("Length", "Params.pocket7_length")

doc.recompute()
